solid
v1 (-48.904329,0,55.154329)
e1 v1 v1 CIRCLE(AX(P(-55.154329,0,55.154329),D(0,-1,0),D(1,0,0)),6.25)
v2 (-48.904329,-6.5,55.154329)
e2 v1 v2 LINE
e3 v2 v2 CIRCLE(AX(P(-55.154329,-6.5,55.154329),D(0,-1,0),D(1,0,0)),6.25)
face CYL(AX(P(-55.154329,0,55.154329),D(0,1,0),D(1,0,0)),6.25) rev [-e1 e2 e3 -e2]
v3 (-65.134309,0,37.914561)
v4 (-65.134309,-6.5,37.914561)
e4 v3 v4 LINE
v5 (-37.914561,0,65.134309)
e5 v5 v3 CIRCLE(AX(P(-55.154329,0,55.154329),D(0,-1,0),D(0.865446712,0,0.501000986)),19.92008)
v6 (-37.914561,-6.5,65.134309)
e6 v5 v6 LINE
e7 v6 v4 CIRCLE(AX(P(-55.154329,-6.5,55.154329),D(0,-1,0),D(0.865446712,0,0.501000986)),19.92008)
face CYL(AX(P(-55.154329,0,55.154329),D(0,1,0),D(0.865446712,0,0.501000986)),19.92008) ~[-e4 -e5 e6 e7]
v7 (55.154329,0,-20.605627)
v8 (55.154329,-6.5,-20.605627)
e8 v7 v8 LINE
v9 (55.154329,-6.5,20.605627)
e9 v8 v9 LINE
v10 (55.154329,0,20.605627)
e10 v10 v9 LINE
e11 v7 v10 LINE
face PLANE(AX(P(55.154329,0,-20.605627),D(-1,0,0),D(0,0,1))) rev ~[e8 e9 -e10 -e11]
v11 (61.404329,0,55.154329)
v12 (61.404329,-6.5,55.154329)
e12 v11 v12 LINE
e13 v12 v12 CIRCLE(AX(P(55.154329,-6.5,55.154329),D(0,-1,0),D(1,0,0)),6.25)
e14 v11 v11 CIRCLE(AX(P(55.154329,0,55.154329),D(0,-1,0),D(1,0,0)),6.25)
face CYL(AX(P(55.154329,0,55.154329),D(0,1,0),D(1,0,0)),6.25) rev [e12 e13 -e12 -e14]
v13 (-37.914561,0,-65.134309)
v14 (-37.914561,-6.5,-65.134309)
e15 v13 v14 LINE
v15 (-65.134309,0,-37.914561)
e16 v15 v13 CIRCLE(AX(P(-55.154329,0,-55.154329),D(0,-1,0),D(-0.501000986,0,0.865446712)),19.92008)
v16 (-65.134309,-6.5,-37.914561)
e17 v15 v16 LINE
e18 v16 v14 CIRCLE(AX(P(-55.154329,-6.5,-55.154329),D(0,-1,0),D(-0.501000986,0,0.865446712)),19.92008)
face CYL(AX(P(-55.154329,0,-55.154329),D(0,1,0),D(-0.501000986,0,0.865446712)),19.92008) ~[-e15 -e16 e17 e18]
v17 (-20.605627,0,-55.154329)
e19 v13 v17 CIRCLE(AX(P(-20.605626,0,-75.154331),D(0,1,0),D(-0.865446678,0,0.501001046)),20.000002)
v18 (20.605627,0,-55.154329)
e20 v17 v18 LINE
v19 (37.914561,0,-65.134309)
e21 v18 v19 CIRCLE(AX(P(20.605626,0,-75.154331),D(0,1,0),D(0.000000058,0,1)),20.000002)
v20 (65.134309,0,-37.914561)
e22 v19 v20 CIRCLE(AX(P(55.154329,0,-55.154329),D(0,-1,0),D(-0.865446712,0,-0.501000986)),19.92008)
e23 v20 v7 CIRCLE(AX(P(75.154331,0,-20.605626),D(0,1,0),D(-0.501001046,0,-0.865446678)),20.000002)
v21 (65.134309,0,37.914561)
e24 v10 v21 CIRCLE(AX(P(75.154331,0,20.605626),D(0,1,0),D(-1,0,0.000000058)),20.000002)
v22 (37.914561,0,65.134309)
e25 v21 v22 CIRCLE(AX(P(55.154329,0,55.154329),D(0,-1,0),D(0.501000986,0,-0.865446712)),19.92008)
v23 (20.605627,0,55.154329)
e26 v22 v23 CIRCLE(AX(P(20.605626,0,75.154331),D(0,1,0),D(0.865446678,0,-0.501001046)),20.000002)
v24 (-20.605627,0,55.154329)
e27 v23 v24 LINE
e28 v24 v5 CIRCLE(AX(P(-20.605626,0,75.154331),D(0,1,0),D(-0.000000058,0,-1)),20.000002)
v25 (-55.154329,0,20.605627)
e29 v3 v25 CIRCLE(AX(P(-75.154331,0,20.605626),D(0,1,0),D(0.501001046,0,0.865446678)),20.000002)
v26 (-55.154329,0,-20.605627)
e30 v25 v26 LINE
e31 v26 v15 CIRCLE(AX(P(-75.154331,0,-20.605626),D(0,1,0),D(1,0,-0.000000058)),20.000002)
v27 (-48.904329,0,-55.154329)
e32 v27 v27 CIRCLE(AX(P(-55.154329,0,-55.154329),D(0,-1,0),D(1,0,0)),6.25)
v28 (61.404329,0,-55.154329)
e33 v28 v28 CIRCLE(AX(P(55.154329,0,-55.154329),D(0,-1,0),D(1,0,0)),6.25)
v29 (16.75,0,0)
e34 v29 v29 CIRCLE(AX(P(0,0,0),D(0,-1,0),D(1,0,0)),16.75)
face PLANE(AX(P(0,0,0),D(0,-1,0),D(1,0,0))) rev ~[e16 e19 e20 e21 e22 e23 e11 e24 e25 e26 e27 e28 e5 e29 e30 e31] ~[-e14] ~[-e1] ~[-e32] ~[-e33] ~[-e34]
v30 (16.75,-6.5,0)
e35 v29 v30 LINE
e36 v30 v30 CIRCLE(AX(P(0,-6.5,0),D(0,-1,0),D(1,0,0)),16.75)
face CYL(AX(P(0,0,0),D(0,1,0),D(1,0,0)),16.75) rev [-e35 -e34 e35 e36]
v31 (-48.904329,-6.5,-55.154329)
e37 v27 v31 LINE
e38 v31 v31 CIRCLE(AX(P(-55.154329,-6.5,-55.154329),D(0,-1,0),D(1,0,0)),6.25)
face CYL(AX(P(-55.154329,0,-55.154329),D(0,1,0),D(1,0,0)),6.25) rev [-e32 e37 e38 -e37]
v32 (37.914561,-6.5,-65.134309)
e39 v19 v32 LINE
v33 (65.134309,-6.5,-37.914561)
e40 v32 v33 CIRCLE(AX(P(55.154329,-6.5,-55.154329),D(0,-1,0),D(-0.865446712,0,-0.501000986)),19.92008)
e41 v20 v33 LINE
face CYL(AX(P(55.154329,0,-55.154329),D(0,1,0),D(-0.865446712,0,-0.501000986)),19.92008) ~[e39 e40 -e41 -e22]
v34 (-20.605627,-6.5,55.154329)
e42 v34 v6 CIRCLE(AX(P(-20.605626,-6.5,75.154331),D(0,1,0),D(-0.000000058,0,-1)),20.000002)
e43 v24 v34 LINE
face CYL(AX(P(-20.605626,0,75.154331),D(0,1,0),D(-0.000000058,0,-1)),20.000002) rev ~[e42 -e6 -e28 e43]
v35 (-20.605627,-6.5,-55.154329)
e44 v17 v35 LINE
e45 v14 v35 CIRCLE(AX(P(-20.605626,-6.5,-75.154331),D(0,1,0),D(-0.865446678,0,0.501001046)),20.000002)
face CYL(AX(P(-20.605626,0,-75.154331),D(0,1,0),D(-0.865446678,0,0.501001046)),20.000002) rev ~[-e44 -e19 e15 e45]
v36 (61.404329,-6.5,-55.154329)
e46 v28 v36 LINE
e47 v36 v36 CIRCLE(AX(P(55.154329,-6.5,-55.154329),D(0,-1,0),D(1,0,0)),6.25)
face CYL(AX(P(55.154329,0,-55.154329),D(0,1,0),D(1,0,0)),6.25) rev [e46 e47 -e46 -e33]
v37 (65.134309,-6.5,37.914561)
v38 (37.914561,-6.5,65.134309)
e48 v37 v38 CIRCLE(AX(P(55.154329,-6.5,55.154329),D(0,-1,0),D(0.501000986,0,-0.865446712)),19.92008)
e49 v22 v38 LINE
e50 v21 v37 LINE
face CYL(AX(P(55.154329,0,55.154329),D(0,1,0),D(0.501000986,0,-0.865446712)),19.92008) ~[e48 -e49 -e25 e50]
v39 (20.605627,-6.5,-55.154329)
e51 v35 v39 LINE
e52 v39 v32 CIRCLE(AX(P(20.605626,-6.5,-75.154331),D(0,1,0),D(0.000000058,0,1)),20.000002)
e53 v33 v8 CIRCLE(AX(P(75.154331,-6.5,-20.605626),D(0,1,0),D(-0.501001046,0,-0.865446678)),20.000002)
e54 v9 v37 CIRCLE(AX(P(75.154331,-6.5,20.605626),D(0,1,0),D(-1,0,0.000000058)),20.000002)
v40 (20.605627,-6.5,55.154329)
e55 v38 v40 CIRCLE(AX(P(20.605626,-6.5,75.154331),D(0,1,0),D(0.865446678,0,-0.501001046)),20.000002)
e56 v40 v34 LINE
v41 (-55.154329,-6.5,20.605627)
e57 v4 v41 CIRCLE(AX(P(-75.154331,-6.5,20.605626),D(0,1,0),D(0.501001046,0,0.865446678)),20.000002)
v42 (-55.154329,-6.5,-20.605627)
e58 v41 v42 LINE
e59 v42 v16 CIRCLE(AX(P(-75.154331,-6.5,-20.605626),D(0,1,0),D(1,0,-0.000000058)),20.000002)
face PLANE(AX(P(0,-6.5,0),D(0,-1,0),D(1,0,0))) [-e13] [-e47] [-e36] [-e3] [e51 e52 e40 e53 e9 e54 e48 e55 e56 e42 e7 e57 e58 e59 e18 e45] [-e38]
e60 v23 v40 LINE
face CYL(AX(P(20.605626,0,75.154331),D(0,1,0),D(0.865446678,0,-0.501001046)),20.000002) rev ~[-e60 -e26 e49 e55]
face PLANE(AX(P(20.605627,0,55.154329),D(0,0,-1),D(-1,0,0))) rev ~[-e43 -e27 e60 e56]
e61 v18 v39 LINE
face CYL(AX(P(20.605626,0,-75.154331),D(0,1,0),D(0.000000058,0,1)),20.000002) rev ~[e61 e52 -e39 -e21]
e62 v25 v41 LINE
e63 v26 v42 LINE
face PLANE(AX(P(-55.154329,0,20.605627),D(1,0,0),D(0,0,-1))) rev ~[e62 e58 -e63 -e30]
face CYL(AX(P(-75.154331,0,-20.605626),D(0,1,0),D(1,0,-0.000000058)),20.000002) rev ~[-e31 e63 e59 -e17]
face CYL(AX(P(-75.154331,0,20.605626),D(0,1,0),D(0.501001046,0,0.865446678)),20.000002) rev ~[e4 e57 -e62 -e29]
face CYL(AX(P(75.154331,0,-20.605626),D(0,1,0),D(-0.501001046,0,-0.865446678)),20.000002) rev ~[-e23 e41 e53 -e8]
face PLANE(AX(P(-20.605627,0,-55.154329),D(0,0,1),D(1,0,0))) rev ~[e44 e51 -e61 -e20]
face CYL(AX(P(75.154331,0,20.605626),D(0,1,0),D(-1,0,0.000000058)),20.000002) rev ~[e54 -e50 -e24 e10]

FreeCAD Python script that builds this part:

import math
import FreeCAD as App
import Part
import Sketcher
Q = App.Units.Quantity

doc = App.newDocument("Part")
body = doc.addObject("PartDesign::Body", "Body")

# Sketch on XZ plane
sketch1 = body.newObject("Sketcher::SketchObject", "Sketch")
sketch1.AttachmentSupport = (doc.getObject("XZ_Plane"), [""])
sketch1.MapMode = "FlatFace"
sketch1.addGeometry(Part.ArcOfCircle(Part.Circle(App.Vector(-21, 75, 0), App.Vector(0, 0, 1), 20), math.radians(-150), math.radians(-90)), False)
sketch1.addGeometry(Part.ArcOfCircle(Part.Circle(App.Vector(-55, 55, 0), App.Vector(0, 0, 1), 20), math.radians(30), math.radians(240)), False)
sketch1.addGeometry(Part.ArcOfCircle(Part.Circle(App.Vector(-75, 21, 0), App.Vector(0, 0, 1), 20), math.radians(0), math.radians(60)), False)
sketch1.addGeometry(Part.LineSegment(App.Vector(-55, 21, 0), App.Vector(-55, -21, 0)), False)
sketch1.addGeometry(Part.ArcOfCircle(Part.Circle(App.Vector(-75, -21, 0), App.Vector(0, 0, 1), 20), math.radians(-60), math.radians(0)), False)
sketch1.addGeometry(Part.ArcOfCircle(Part.Circle(App.Vector(-55, -55, 0), App.Vector(0, 0, 1), 20), math.radians(120), math.radians(330)), False)
sketch1.addGeometry(Part.ArcOfCircle(Part.Circle(App.Vector(-21, -75, 0), App.Vector(0, 0, 1), 20), math.radians(90), math.radians(150)), False)
sketch1.addGeometry(Part.LineSegment(App.Vector(-21, -55, 0), App.Vector(21, -55, 0)), False)
sketch1.addGeometry(Part.ArcOfCircle(Part.Circle(App.Vector(21, -75, 0), App.Vector(0, 0, 1), 20), math.radians(30), math.radians(90)), False)
sketch1.addGeometry(Part.ArcOfCircle(Part.Circle(App.Vector(55, -55, 0), App.Vector(0, 0, 1), 20), math.radians(-150), math.radians(60)), False)
sketch1.addGeometry(Part.ArcOfCircle(Part.Circle(App.Vector(75, -21, 0), App.Vector(0, 0, 1), 20), math.radians(-180), math.radians(-120)), False)
sketch1.addGeometry(Part.LineSegment(App.Vector(55, -21, 0), App.Vector(55, 21, 0)), False)
sketch1.addGeometry(Part.ArcOfCircle(Part.Circle(App.Vector(75, 21, 0), App.Vector(0, 0, 1), 20), math.radians(120), math.radians(180)), False)
sketch1.addGeometry(Part.ArcOfCircle(Part.Circle(App.Vector(55, 55, 0), App.Vector(0, 0, 1), 20), math.radians(-60), math.radians(150)), False)
sketch1.addGeometry(Part.ArcOfCircle(Part.Circle(App.Vector(21, 75, 0), App.Vector(0, 0, 1), 20), math.radians(-90), math.radians(-30)), False)
sketch1.addGeometry(Part.LineSegment(App.Vector(21, 55, 0), App.Vector(-21, 55, 0)), False)
sketch1.addGeometry(Part.Circle(App.Vector(-55, -55, 0), App.Vector(0, 0, 1), 6), False)
sketch1.addGeometry(Part.Circle(App.Vector(55, -55, 0), App.Vector(0, 0, 1), 6), False)
sketch1.addGeometry(Part.Circle(App.Vector(-55, 55, 0), App.Vector(0, 0, 1), 6), False)
sketch1.addGeometry(Part.Circle(App.Vector(0, 0, 0), App.Vector(0, 0, 1), 17), False)
sketch1.addGeometry(Part.Circle(App.Vector(55, 55, 0), App.Vector(0, 0, 1), 6), False)
sketch1.addConstraint(Sketcher.Constraint("Tangent", 0, 1, 1, 1))
sketch1.addConstraint(Sketcher.Constraint("Tangent", 1, 2, 2, 2))
sketch1.addConstraint(Sketcher.Constraint("Tangent", 2, 1, 3, 1))
sketch1.addConstraint(Sketcher.Constraint("Tangent", 3, 2, 4, 2))
sketch1.addConstraint(Sketcher.Constraint("Tangent", 4, 1, 5, 1))
sketch1.addConstraint(Sketcher.Constraint("Tangent", 5, 2, 6, 2))
sketch1.addConstraint(Sketcher.Constraint("Tangent", 6, 1, 7, 1))
sketch1.addConstraint(Sketcher.Constraint("Tangent", 7, 2, 8, 2))
sketch1.addConstraint(Sketcher.Constraint("Tangent", 8, 1, 9, 1))
sketch1.addConstraint(Sketcher.Constraint("Tangent", 9, 2, 10, 2))
sketch1.addConstraint(Sketcher.Constraint("Tangent", 10, 1, 11, 1))
sketch1.addConstraint(Sketcher.Constraint("Tangent", 11, 2, 12, 2))
sketch1.addConstraint(Sketcher.Constraint("Tangent", 12, 1, 13, 1))
sketch1.addConstraint(Sketcher.Constraint("Tangent", 13, 2, 14, 2))
sketch1.addConstraint(Sketcher.Constraint("Tangent", 14, 1, 15, 1))
sketch1.addConstraint(Sketcher.Constraint("Tangent", 15, 2, 0, 2))
sketch1.addConstraint(Sketcher.Constraint("Vertical", 3))
sketch1.addConstraint(Sketcher.Constraint("Horizontal", 7))
sketch1.addConstraint(Sketcher.Constraint("Vertical", 11))
sketch1.addConstraint(Sketcher.Constraint("Horizontal", 15))
sketch1.addConstraint(Sketcher.Constraint("Coincident", 19, 3, -1, 1))
sketch1.addConstraint(Sketcher.Constraint("Coincident", 16, 3, 5, 3))
sketch1.addConstraint(Sketcher.Constraint("Coincident", 17, 3, 9, 3))
sketch1.addConstraint(Sketcher.Constraint("Coincident", 18, 3, 1, 3))
sketch1.addConstraint(Sketcher.Constraint("Coincident", 20, 3, 13, 3))
sketch1.addConstraint(Sketcher.Constraint("Equal", 0, 2))
sketch1.addConstraint(Sketcher.Constraint("Equal", 2, 4))
sketch1.addConstraint(Sketcher.Constraint("Equal", 1, 5))
sketch1.addConstraint(Sketcher.Constraint("Equal", 4, 6))
sketch1.addConstraint(Sketcher.Constraint("Equal", 6, 8))
sketch1.addConstraint(Sketcher.Constraint("Equal", 5, 9))
sketch1.addConstraint(Sketcher.Constraint("Equal", 8, 10))
sketch1.addConstraint(Sketcher.Constraint("Equal", 10, 12))
sketch1.addConstraint(Sketcher.Constraint("Equal", 9, 13))
sketch1.addConstraint(Sketcher.Constraint("Equal", 12, 14))
sketch1.addConstraint(Sketcher.Constraint("Equal", 16, 17))
sketch1.addConstraint(Sketcher.Constraint("Equal", 17, 18))
sketch1.addConstraint(Sketcher.Constraint("Equal", 18, 20))
sketch1.addConstraint(Sketcher.Constraint("Symmetric", 0, 3, 8, 3, -1, 1))
sketch1.addConstraint(Sketcher.Constraint("Symmetric", 2, 3, 10, 3, -1, 1))
sketch1.addConstraint(Sketcher.Constraint("Symmetric", 5, 3, 13, 3, -1, 1))
sketch1.addConstraint(Sketcher.Constraint("Symmetric", 5, 3, 9, 3, -2))
sketch1.addConstraint(Sketcher.Constraint("Horizontal", 17, 3, 6, 1))
sketch1.addConstraint(Sketcher.Constraint("Vertical", 18, 3, 2, 1))
sketch1.addConstraint(Sketcher.Constraint("Equal", 15, 3))
sketch1.addConstraint(Sketcher.Constraint("Radius", 0, Q("20.000002 mm")))
sketch1.addConstraint(Sketcher.Constraint("Diameter", 16, Q("12.5 mm")))
sketch1.addConstraint(Sketcher.Constraint("Diameter", 19, Q("33.5 mm")))
sketch1.addConstraint(Sketcher.Constraint("Radius", 1, Q("19.92008 mm")))
sketch1.addConstraint(Sketcher.Constraint("DistanceX", 7, 1, 7, 2, Q("41.211254 mm")))
pad1 = body.newObject("PartDesign::Pad", "Pad")
pad1.Profile = sketch1
pad1.Length = 6.5

doc.recompute()
